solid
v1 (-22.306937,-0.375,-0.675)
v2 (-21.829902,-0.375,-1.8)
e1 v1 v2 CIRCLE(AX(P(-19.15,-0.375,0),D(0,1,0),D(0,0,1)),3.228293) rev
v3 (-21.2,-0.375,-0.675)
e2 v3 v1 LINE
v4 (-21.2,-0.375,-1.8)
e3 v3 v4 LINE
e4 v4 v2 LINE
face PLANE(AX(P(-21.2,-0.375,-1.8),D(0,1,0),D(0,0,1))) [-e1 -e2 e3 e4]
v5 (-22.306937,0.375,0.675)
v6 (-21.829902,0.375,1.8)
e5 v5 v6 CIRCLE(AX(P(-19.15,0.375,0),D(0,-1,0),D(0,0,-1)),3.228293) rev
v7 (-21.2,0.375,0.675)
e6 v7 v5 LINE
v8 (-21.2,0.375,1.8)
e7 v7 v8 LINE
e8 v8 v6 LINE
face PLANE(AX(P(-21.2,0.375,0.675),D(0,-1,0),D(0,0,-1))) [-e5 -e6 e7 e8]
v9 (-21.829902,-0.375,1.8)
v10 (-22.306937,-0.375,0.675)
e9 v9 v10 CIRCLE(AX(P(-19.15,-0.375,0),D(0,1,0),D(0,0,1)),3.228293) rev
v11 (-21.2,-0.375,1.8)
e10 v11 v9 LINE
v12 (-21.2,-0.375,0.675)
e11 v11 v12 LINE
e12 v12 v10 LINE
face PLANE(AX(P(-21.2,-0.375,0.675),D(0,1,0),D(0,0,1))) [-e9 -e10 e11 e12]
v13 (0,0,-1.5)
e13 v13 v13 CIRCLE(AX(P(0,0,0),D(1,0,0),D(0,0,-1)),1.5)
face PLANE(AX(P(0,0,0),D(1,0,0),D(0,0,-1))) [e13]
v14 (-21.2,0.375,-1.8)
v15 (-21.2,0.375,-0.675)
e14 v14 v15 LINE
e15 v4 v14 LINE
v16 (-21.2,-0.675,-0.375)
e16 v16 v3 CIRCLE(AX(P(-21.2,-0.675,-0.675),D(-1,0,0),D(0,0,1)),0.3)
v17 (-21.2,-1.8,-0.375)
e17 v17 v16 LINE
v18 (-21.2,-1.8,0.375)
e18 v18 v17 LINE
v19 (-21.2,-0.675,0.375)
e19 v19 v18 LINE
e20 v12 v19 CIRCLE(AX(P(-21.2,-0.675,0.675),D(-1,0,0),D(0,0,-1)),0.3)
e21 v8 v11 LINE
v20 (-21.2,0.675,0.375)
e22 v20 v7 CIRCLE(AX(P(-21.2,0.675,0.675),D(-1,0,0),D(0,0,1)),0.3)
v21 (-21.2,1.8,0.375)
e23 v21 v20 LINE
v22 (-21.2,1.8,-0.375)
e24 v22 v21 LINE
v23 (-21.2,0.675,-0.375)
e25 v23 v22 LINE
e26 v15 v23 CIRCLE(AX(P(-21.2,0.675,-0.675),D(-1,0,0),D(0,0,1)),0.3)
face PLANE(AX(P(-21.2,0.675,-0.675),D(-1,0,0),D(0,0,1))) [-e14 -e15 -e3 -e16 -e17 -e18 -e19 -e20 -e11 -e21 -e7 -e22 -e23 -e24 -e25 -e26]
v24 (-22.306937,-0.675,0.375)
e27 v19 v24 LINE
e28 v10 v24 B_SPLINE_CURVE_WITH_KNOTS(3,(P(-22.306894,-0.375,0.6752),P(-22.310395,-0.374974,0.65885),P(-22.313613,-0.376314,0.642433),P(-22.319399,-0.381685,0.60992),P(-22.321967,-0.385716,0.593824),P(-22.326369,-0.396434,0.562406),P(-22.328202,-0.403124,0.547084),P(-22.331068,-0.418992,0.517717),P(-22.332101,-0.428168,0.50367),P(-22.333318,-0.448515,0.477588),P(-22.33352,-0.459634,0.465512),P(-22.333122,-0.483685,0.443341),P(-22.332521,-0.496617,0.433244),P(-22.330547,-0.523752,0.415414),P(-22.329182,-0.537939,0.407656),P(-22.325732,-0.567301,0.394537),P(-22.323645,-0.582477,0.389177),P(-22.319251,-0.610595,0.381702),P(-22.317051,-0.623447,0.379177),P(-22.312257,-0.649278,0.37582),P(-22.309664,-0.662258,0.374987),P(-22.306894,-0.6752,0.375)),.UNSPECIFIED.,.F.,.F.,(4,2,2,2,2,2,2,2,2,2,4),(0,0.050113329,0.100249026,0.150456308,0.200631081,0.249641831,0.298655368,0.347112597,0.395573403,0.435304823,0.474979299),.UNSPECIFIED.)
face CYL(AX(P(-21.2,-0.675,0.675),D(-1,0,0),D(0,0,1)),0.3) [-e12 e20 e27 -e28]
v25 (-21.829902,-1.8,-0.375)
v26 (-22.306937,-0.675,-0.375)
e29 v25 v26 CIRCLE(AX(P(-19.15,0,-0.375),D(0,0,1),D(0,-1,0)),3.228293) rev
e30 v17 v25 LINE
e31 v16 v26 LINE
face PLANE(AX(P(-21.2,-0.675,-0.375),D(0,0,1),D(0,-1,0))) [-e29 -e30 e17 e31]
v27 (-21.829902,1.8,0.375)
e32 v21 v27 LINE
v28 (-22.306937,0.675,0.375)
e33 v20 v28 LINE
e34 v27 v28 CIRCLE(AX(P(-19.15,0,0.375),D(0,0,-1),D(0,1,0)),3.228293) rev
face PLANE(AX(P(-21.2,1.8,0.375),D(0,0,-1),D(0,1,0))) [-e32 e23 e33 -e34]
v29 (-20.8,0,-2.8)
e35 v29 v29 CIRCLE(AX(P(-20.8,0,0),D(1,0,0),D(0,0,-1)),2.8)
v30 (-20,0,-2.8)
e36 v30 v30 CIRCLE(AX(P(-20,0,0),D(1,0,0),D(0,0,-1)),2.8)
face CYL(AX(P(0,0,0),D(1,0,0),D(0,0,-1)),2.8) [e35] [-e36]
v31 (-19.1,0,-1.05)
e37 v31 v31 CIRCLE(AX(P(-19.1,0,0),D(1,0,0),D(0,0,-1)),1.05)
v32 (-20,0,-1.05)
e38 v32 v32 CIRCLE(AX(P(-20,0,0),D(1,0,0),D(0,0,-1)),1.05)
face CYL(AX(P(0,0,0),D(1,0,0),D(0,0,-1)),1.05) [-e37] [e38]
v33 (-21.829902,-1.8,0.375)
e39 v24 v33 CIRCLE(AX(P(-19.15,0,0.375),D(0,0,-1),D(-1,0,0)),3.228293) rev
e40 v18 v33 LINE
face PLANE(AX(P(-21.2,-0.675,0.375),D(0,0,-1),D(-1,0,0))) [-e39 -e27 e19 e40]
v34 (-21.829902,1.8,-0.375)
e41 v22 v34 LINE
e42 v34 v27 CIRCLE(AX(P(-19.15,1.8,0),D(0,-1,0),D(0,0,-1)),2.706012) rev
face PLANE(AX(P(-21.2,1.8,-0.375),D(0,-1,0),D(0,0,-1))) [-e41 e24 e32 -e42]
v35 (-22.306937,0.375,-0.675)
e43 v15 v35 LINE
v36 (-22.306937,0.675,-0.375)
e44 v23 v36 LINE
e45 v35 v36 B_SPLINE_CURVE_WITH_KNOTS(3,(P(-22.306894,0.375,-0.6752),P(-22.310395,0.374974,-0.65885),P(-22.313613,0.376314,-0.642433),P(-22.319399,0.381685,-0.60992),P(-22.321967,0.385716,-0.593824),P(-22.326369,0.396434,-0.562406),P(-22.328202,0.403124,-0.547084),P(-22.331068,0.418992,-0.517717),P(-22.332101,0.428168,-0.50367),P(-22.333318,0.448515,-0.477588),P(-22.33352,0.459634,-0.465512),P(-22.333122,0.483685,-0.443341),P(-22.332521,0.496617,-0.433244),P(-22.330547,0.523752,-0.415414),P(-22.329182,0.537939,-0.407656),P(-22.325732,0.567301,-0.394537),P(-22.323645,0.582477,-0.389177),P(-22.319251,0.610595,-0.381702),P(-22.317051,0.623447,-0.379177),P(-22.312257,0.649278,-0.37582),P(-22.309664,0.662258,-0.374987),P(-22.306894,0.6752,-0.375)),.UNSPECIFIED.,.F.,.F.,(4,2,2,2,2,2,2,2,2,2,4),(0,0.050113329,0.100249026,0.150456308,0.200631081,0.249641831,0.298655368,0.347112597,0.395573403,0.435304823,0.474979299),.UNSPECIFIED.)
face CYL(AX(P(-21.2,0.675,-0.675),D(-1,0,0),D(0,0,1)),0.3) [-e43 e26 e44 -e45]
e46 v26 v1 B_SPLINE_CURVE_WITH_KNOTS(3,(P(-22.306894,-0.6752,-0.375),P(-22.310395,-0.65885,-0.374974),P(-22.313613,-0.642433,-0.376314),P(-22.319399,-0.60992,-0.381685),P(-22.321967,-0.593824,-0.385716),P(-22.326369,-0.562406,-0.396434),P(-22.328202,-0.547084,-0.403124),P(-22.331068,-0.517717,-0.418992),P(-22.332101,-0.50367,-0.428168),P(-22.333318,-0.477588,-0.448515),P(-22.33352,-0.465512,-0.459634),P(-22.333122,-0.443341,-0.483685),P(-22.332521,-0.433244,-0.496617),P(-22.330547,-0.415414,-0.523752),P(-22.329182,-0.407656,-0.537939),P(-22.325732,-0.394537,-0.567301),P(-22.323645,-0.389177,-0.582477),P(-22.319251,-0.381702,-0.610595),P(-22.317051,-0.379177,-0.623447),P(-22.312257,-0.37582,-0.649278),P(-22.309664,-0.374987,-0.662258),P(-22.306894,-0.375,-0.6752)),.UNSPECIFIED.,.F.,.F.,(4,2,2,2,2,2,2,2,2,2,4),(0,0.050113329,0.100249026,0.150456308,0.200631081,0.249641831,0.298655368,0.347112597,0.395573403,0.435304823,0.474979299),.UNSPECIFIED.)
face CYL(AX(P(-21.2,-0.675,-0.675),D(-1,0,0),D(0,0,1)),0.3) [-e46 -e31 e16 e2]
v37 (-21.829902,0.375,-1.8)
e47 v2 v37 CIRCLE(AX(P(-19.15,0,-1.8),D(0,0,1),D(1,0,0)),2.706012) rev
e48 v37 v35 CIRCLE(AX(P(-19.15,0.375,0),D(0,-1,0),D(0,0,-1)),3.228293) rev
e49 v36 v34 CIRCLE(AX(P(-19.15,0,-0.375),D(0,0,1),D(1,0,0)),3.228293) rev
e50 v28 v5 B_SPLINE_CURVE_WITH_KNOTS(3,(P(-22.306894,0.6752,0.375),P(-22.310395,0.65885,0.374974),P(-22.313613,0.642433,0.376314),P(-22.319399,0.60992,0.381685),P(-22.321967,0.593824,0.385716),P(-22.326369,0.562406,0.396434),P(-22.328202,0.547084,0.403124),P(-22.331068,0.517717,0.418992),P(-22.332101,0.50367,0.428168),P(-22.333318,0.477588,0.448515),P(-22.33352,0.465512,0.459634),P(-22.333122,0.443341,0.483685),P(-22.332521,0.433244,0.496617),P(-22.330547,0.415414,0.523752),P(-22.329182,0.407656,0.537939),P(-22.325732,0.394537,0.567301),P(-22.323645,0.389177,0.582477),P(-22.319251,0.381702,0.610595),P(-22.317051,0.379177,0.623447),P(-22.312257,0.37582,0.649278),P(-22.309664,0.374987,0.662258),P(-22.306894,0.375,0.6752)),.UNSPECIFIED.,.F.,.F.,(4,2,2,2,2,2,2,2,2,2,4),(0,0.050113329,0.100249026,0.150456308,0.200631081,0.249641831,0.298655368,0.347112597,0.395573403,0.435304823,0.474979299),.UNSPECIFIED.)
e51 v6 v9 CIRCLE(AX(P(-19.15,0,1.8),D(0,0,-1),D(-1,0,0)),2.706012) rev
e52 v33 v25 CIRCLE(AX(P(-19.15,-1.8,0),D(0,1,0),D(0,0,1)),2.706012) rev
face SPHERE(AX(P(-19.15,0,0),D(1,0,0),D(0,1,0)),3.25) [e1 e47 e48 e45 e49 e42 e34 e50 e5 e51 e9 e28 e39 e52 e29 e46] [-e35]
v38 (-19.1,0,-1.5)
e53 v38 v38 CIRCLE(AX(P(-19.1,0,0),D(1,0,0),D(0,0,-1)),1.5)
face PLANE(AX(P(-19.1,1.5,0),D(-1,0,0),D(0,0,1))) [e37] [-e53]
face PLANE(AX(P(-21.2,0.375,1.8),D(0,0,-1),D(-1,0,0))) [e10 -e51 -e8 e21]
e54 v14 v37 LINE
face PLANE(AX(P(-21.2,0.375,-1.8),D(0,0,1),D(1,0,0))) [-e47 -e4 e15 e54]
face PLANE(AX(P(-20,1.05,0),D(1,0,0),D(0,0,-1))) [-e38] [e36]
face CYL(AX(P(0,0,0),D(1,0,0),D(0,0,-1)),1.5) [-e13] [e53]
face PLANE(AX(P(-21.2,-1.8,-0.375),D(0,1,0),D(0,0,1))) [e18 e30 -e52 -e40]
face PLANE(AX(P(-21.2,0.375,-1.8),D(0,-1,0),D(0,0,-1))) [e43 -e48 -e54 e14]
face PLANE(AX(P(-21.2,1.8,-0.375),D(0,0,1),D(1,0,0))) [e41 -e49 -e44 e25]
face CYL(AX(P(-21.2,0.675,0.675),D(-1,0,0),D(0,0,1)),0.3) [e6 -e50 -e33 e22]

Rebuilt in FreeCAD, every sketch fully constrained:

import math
import FreeCAD as App
import Part
import Sketcher
Q = App.Units.Quantity

doc = App.newDocument("Part")
body = doc.addObject("PartDesign::Body", "Body")

# Sketch on XY plane
sketch1 = body.newObject("Sketcher::SketchObject", "Sketch")
sketch1.AttachmentSupport = (doc.getObject("XY_Plane"), [""])
sketch1.MapMode = "FlatFace"
sketch1.addGeometry([
    Part.LineSegment(App.Vector(0, 0, 0), App.Vector(0, 1.5, 0)),  # 0
    Part.LineSegment(App.Vector(0, 1.5, 0), App.Vector(-19.1, 1.5, 0)),  # 1
    Part.LineSegment(App.Vector(-19.1, 1.5, 0), App.Vector(-19.1, 1.05, 0)),  # 2
    Part.LineSegment(App.Vector(-19.1, 1.05, 0), App.Vector(-20, 1.05, 0)),  # 3
    Part.LineSegment(App.Vector(-20, 1.05, 0), App.Vector(-20, 2.8, 0)),  # 4
    Part.LineSegment(App.Vector(-20, 2.8, 0), App.Vector(-20.8, 2.8, 0)),  # 5
    Part.ArcOfCircle(Part.Circle(App.Vector(-19.15, 0, 0), App.Vector(0, 0, 1), 3.25), math.radians(121), math.radians(180)),  # 6
    Part.LineSegment(App.Vector(-22.4, 0, 0), App.Vector(0, 0, 0)),  # 7
], False)
sketch1.addConstraint([
    Sketcher.Constraint("Coincident", 0, 2, 1, 1),
    Sketcher.Constraint("Coincident", 1, 2, 2, 1),
    Sketcher.Constraint("Coincident", 2, 2, 3, 1),
    Sketcher.Constraint("Coincident", 3, 2, 4, 1),
    Sketcher.Constraint("Coincident", 4, 2, 5, 1),
    Sketcher.Constraint("Coincident", 5, 2, 6, 1),
    Sketcher.Constraint("Coincident", 6, 2, 7, 1),
    Sketcher.Constraint("Coincident", 7, 2, 0, 1),
    Sketcher.Constraint("Vertical", 0),
    Sketcher.Constraint("Horizontal", 1),
    Sketcher.Constraint("Vertical", 2),
    Sketcher.Constraint("Horizontal", 3),
    Sketcher.Constraint("Vertical", 4),
    Sketcher.Constraint("Horizontal", 5),
    Sketcher.Constraint("Horizontal", 7),
    Sketcher.Constraint("Coincident", 7, 2, -1, 1),
    Sketcher.Constraint("PointOnObject", 6, 3, -1),
    Sketcher.Constraint("Radius", 6, Q("3.25 mm")),
    Sketcher.Constraint("DistanceX", 1, 2, 1, 1, Q("19.1 mm")),
    Sketcher.Constraint("DistanceX", 3, 2, 3, 1, Q("0.9 mm")),
    Sketcher.Constraint("DistanceX", 5, 2, 5, 1, Q("0.8 mm")),
    Sketcher.Constraint("DistanceX", 7, 1, 7, 2, Q("22.4 mm")),
    Sketcher.Constraint("DistanceY", 0, 1, 0, 2, Q("1.5 mm")),
    Sketcher.Constraint("DistanceY", 2, 2, 2, 1, Q("0.45 mm")),
])
revolution = body.newObject("PartDesign::Revolution", "Revolution")
revolution.Profile = sketch1
revolution.ReferenceAxis = (sketch1, ["H_Axis"])
revolution.Angle = 360

# Sketch on YZ plane
sketch2 = body.newObject("Sketcher::SketchObject", "Sketch001")
sketch2.AttachmentSupport = (doc.getObject("YZ_Plane"), [""])
sketch2.MapMode = "FlatFace"
sketch2.AttachmentOffset = App.Placement(App.Vector(0, 0, -22.4), App.Rotation())
sketch2.addGeometry([
    Part.LineSegment(App.Vector(1.8, -0.38, 0), App.Vector(1.8, 0.38, 0)),  # 0
    Part.LineSegment(App.Vector(1.8, 0.38, 0), App.Vector(0.68, 0.38, 0)),  # 1
    Part.ArcOfCircle(Part.Circle(App.Vector(0.68, 0.68, 0), App.Vector(0, 0, 1), 0.3), math.radians(-180), math.radians(-90)),  # 2
    Part.LineSegment(App.Vector(0.38, 0.68, 0), App.Vector(0.38, 1.8, 0)),  # 3
    Part.LineSegment(App.Vector(0.38, 1.8, 0), App.Vector(-0.38, 1.8, 0)),  # 4
    Part.LineSegment(App.Vector(-0.38, 1.8, 0), App.Vector(-0.38, 0.68, 0)),  # 5
    Part.ArcOfCircle(Part.Circle(App.Vector(-0.68, 0.68, 0), App.Vector(0, 0, 1), 0.3), math.radians(-90), math.radians(0)),  # 6
    Part.LineSegment(App.Vector(-0.68, 0.38, 0), App.Vector(-1.8, 0.38, 0)),  # 7
    Part.LineSegment(App.Vector(-1.8, 0.38, 0), App.Vector(-1.8, -0.38, 0)),  # 8
    Part.LineSegment(App.Vector(-1.8, -0.38, 0), App.Vector(-0.68, -0.38, 0)),  # 9
    Part.ArcOfCircle(Part.Circle(App.Vector(-0.68, -0.68, 0), App.Vector(0, 0, 1), 0.3), math.radians(0), math.radians(90)),  # 10
    Part.LineSegment(App.Vector(-0.38, -0.68, 0), App.Vector(-0.38, -1.8, 0)),  # 11
    Part.LineSegment(App.Vector(-0.38, -1.8, 0), App.Vector(0.38, -1.8, 0)),  # 12
    Part.LineSegment(App.Vector(0.38, -1.8, 0), App.Vector(0.38, -0.68, 0)),  # 13
    Part.ArcOfCircle(Part.Circle(App.Vector(0.68, -0.68, 0), App.Vector(0, 0, 1), 0.3), math.radians(90), math.radians(180)),  # 14
    Part.LineSegment(App.Vector(0.68, -0.38, 0), App.Vector(1.8, -0.38, 0)),  # 15
], False)
sketch2.addConstraint([
    Sketcher.Constraint("Coincident", 0, 2, 1, 1),
    Sketcher.Constraint("Tangent", 1, 2, 2, 2),
    Sketcher.Constraint("Tangent", 2, 1, 3, 1),
    Sketcher.Constraint("Coincident", 3, 2, 4, 1),
    Sketcher.Constraint("Coincident", 4, 2, 5, 1),
    Sketcher.Constraint("Tangent", 5, 2, 6, 2),
    Sketcher.Constraint("Tangent", 6, 1, 7, 1),
    Sketcher.Constraint("Coincident", 7, 2, 8, 1),
    Sketcher.Constraint("Coincident", 8, 2, 9, 1),
    Sketcher.Constraint("Tangent", 9, 2, 10, 2),
    Sketcher.Constraint("Tangent", 10, 1, 11, 1),
    Sketcher.Constraint("Coincident", 11, 2, 12, 1),
    Sketcher.Constraint("Coincident", 12, 2, 13, 1),
    Sketcher.Constraint("Tangent", 13, 2, 14, 2),
    Sketcher.Constraint("Tangent", 14, 1, 15, 1),
    Sketcher.Constraint("Coincident", 15, 2, 0, 1),
    Sketcher.Constraint("Vertical", 0),
    Sketcher.Constraint("Horizontal", 1),
    Sketcher.Constraint("Vertical", 3),
    Sketcher.Constraint("Horizontal", 4),
    Sketcher.Constraint("Vertical", 5),
    Sketcher.Constraint("Horizontal", 7),
    Sketcher.Constraint("Vertical", 8),
    Sketcher.Constraint("Horizontal", 9),
    Sketcher.Constraint("Vertical", 11),
    Sketcher.Constraint("Horizontal", 12),
    Sketcher.Constraint("Vertical", 13),
    Sketcher.Constraint("Horizontal", 15),
    Sketcher.Constraint("Equal", 2, 6),
    Sketcher.Constraint("Equal", 6, 10),
    Sketcher.Constraint("Equal", 10, 14),
    Sketcher.Constraint("Symmetric", 2, 3, 10, 3, -1, 1),
    Sketcher.Constraint("Symmetric", 6, 3, 14, 3, -1, 1),
    Sketcher.Constraint("Symmetric", 2, 3, 6, 3, -2),
    Sketcher.Constraint("Equal", 1, 7),
    Sketcher.Constraint("Equal", 12, 0),
    Sketcher.Constraint("Equal", 15, 3),
    Sketcher.Constraint("Equal", 5, 11),
    Sketcher.Constraint("Radius", 2, Q("0.3 mm")),
    Sketcher.Constraint("DistanceX", 4, 2, 4, 1, Q("0.75 mm")),
    Sketcher.Constraint("DistanceX", -1, 1, 0, 2, Q("1.8 mm")),
])
pocket1 = body.newObject("PartDesign::Pocket", "Pocket")
pocket1.Profile = sketch2
pocket1.Length = 1.2
pocket1.Reversed = True

doc.recompute()
